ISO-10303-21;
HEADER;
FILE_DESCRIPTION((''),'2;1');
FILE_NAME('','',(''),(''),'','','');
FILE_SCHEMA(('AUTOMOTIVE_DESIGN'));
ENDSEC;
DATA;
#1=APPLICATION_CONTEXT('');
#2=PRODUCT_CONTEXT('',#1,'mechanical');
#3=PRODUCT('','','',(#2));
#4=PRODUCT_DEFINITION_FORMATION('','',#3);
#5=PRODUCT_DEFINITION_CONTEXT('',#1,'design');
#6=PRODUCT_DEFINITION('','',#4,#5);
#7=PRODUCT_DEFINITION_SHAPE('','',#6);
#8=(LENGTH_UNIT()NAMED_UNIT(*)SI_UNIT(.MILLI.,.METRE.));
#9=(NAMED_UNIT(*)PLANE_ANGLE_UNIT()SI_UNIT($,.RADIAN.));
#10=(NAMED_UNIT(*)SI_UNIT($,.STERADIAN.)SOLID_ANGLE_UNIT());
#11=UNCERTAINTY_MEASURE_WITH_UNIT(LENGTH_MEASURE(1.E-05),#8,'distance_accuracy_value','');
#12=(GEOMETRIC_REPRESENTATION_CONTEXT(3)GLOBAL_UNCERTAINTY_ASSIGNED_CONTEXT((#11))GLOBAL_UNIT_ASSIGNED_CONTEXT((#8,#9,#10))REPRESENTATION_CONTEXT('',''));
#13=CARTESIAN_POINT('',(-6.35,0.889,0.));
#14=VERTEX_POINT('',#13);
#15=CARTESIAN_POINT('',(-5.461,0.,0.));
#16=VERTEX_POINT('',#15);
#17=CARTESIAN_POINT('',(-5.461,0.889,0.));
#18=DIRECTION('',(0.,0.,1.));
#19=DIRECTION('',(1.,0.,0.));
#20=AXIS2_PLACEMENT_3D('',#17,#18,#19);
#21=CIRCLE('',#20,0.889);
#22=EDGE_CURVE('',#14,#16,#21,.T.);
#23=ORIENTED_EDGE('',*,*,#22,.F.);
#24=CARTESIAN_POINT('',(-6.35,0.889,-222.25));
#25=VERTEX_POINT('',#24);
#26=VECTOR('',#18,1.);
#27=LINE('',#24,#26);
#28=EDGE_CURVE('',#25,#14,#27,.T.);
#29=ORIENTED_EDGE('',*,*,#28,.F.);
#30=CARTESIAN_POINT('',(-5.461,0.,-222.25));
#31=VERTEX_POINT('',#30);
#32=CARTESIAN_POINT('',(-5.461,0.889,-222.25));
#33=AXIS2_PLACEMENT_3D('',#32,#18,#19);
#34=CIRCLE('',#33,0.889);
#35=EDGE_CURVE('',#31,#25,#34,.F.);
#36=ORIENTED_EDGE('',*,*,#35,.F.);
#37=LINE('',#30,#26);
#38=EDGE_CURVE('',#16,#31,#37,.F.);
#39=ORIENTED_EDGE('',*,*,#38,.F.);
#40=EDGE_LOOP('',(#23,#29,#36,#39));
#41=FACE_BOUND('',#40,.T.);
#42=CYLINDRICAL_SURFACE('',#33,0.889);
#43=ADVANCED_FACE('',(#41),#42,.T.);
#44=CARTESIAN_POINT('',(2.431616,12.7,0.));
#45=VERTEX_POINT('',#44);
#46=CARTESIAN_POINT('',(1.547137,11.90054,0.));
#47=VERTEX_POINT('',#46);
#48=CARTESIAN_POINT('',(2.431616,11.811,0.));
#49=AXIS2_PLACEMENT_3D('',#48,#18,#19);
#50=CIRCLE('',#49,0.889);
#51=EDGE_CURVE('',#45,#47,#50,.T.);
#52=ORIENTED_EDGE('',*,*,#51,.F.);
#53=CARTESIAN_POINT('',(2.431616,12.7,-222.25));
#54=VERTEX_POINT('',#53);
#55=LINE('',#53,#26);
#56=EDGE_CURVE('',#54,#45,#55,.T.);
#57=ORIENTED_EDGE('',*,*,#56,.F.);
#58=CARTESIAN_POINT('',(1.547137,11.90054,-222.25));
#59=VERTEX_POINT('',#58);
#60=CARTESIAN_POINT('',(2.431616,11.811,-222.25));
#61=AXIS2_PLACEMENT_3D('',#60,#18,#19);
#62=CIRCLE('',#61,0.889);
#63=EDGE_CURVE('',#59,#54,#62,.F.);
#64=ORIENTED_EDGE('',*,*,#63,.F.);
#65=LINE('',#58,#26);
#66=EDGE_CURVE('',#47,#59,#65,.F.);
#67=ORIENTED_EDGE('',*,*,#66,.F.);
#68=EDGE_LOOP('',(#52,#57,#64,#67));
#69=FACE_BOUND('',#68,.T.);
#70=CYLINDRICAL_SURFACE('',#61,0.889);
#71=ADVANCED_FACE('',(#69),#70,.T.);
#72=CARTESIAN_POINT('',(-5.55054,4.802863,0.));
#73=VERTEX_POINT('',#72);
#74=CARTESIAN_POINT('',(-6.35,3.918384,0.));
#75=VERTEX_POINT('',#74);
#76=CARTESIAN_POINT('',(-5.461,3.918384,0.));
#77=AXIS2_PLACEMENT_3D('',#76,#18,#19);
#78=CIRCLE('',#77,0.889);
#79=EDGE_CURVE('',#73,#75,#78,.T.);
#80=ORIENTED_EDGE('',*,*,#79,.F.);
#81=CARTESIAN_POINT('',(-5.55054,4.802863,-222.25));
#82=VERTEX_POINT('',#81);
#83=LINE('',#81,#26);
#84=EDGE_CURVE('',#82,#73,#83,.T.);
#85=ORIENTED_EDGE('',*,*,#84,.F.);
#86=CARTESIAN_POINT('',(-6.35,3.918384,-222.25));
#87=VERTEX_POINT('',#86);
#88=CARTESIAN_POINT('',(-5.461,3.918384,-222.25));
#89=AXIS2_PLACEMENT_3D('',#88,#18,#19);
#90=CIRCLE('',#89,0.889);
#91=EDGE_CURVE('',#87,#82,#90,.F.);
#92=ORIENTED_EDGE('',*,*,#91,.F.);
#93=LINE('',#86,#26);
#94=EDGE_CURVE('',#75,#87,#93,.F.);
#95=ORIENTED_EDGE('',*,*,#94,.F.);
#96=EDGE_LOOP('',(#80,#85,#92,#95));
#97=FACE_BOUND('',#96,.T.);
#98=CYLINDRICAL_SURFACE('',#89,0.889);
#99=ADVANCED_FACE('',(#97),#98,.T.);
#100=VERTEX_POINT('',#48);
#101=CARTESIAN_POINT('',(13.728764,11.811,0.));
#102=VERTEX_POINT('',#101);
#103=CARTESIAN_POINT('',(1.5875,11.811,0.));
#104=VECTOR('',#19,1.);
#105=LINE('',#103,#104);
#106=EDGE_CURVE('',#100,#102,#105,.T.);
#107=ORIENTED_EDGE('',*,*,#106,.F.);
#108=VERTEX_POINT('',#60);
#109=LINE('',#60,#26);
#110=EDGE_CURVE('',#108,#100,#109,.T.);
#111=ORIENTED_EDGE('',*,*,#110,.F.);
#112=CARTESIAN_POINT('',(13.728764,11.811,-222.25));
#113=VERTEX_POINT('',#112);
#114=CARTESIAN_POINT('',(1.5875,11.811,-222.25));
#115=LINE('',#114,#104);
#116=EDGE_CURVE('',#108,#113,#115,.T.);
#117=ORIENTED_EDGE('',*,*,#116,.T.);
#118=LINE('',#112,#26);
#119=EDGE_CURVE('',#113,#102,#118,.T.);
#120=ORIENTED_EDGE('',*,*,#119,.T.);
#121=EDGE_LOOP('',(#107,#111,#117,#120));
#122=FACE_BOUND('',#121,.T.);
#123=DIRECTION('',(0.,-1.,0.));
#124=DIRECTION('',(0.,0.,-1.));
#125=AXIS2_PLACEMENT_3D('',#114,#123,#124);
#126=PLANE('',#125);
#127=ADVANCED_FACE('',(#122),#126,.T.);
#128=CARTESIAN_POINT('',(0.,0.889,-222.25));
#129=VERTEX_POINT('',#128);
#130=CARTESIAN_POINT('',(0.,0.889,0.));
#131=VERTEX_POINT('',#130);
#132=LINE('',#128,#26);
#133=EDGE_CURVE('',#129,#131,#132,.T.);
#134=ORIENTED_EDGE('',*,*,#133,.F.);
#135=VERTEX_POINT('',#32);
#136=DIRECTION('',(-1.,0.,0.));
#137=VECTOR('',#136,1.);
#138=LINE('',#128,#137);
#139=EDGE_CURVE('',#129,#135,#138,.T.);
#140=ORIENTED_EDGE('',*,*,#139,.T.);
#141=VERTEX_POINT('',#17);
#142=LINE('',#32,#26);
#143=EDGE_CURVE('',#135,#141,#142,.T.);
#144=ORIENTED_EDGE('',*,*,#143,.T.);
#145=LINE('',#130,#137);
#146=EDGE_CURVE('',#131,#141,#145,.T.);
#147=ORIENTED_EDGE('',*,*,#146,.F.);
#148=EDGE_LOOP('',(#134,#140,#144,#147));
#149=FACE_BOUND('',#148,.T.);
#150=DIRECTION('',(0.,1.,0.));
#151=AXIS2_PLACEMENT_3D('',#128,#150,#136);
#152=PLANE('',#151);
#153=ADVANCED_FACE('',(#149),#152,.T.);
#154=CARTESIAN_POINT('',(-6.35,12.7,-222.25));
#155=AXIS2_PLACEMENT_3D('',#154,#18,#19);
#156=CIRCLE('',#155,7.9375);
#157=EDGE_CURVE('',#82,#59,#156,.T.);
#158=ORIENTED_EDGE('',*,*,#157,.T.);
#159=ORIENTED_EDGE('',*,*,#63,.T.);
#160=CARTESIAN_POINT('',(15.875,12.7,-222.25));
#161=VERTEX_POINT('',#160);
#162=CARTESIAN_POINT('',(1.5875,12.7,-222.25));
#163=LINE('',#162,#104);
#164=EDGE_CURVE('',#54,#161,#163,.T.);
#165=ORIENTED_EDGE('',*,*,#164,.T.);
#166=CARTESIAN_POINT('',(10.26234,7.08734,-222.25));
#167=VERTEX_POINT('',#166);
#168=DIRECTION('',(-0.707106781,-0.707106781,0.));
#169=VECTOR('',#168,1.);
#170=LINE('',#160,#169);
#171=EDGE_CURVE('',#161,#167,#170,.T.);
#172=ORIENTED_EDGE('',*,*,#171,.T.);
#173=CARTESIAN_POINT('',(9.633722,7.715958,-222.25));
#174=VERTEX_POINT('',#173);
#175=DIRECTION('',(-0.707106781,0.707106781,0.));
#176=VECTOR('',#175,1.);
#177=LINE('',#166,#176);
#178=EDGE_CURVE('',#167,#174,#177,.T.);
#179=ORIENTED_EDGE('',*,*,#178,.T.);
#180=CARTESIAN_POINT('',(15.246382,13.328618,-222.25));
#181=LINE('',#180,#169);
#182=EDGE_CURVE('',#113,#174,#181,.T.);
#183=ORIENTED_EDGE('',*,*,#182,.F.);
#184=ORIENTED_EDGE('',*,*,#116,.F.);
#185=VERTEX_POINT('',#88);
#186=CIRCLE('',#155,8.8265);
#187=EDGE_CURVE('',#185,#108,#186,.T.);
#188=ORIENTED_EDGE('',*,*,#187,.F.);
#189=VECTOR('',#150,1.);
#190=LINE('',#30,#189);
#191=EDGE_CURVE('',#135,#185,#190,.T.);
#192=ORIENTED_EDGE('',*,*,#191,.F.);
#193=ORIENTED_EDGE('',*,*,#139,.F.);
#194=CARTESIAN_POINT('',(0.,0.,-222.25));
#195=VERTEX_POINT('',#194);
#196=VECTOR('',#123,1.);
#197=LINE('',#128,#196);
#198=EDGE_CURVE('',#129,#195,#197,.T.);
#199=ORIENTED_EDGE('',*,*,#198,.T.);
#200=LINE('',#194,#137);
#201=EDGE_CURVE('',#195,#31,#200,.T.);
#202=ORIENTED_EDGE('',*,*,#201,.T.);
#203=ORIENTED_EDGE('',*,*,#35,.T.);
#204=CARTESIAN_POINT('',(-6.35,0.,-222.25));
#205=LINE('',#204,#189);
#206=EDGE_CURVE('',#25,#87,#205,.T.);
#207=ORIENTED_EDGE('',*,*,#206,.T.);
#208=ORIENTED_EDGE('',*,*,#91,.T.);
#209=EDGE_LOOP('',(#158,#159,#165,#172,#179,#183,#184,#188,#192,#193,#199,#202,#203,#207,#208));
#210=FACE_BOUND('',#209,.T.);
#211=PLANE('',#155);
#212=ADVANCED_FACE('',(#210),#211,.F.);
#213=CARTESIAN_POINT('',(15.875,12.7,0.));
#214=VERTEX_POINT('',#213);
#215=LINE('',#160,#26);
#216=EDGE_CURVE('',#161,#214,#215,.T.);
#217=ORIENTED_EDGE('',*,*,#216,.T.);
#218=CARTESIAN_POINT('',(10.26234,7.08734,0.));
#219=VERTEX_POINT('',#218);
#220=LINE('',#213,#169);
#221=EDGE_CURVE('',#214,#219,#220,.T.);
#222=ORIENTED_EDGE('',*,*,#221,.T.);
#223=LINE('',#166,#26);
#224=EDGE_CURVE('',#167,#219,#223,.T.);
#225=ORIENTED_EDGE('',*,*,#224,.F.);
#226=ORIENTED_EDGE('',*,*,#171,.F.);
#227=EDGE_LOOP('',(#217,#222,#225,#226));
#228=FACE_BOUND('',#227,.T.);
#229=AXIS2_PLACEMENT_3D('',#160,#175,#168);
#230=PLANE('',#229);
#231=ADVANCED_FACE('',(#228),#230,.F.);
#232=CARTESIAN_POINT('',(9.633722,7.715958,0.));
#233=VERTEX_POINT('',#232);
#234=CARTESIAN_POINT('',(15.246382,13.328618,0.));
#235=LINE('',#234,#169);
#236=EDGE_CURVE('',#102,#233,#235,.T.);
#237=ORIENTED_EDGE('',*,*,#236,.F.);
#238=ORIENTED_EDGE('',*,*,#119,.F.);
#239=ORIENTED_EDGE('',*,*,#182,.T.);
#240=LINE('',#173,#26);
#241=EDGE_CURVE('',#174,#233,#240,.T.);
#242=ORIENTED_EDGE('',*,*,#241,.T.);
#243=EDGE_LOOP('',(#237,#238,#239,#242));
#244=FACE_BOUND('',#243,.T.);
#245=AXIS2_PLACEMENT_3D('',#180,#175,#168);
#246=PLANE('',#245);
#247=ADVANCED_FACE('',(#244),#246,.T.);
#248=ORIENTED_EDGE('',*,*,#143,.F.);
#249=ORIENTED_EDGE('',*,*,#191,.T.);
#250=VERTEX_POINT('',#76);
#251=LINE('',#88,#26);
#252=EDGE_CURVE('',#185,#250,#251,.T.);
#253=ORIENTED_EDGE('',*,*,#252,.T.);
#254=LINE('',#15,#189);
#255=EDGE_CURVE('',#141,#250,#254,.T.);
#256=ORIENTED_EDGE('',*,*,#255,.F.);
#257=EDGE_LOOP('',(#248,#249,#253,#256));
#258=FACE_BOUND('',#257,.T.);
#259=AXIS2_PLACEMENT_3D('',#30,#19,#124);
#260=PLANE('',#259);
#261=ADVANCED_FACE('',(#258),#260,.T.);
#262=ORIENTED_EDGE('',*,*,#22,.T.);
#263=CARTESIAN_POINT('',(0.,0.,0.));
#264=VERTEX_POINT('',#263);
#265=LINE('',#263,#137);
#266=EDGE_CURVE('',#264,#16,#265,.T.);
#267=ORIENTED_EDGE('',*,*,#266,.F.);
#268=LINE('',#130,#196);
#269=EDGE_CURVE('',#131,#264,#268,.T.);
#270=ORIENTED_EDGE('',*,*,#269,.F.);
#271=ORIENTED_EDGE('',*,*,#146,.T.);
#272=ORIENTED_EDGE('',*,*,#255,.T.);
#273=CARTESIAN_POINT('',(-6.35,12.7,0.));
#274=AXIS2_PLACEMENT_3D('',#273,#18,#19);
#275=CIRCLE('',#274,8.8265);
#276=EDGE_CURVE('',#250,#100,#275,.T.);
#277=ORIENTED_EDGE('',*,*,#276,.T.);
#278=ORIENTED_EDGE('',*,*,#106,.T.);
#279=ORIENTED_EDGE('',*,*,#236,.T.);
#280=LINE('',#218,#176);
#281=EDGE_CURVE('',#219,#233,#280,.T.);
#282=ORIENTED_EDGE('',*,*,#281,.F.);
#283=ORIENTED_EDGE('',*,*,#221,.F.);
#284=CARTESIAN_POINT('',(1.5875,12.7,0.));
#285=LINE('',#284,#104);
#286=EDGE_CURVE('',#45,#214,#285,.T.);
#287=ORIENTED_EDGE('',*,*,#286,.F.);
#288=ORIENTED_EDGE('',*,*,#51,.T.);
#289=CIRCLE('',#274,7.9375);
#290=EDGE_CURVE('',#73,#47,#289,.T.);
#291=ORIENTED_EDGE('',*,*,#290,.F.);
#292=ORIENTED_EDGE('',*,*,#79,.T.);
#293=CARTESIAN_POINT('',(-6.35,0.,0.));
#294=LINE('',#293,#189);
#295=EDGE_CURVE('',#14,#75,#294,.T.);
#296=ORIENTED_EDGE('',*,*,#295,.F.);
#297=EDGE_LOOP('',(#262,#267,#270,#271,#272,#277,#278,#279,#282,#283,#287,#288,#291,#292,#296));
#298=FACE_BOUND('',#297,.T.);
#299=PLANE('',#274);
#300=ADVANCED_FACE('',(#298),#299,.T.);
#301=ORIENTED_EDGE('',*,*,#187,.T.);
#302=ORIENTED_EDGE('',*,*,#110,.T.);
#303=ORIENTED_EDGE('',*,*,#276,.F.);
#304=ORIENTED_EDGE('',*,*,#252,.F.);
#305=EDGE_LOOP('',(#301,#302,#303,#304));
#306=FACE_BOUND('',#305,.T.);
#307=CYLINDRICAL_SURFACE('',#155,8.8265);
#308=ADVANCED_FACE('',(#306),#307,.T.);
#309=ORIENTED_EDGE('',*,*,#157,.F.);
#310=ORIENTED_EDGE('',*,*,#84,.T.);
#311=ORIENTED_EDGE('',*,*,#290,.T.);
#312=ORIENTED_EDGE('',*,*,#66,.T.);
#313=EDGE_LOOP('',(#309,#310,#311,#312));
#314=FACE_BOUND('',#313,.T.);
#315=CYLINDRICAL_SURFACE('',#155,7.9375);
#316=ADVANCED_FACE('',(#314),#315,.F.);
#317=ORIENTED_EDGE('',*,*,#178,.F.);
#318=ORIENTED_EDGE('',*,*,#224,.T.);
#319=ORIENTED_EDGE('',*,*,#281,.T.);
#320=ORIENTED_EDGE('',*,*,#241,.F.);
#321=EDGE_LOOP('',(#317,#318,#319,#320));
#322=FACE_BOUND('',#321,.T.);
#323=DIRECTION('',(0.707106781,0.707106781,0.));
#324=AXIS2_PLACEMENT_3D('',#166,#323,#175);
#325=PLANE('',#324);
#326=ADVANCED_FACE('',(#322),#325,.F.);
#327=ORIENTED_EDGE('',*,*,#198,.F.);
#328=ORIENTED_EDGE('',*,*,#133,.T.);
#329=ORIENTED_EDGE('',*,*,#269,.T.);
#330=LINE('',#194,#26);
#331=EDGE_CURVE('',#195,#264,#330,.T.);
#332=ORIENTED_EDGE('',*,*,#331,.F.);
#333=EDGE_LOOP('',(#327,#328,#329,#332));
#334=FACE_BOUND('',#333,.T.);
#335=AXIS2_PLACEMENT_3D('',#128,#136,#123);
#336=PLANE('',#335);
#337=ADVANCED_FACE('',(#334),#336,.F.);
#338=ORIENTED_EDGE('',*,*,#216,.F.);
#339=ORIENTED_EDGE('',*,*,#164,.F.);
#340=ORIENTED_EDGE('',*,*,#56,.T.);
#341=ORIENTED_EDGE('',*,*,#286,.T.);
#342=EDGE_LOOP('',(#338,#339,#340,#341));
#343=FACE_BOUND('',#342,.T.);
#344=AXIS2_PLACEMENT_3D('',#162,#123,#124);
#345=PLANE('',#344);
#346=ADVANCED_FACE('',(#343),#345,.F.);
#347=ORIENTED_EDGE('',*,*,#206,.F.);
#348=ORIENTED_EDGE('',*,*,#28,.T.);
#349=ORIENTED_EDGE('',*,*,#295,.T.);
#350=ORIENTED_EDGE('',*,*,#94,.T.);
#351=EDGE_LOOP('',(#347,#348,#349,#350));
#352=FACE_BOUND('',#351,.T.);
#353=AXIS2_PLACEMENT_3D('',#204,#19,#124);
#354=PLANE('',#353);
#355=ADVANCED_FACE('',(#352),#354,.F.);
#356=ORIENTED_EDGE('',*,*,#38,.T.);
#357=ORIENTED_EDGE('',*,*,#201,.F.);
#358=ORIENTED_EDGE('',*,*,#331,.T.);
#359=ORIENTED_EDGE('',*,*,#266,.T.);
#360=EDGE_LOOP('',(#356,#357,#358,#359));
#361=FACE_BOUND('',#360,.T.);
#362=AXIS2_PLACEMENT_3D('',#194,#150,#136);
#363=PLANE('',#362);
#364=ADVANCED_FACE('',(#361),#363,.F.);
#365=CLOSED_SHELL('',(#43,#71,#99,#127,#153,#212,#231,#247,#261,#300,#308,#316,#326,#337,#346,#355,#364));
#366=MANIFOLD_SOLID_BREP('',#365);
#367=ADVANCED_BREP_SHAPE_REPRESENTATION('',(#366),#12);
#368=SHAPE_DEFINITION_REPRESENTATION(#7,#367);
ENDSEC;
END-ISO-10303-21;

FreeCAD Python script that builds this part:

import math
import FreeCAD as App
import Part
import Sketcher

V = App.Vector
Q = App.Units.Quantity


def edges_at(feature, points):
    """Names of the edges that pass closest to the given points."""
    edges = feature.Shape.Edges
    near = lambda p: min(range(len(edges)), key=lambda i: edges[i].distToShape(Part.Vertex(*p))[0])
    return sorted({f"Edge{near(p) + 1}" for p in points})

doc = App.newDocument("Part")
params = doc.addObject("Spreadsheet::Sheet", "Params")
for row, (alias, value) in enumerate([
    ("sketch1_radius", "0.3125 in"),
    ("sketch1_width", "0.25 in"),
    ("sketch1_width2", "0.215 in"),
    ("sketch1_width3", "0.5625 in"),
    ("sketch1_height", "0.035 in"),
    ("pad1_length", "8.75 in"),
    ("fillet_radius", "0.035 in"),
], start=1):
    params.set(f"A{row}", alias)
    params.set(f"B{row}", "=" + value)
    params.setAlias(f"B{row}", alias)

body = doc.addObject("PartDesign::Body", "Body")

# Sketch on XY plane
sketch1 = body.newObject("Sketcher::SketchObject", "Sketch")
sketch1.AttachmentSupport = (doc.getObject("XY_Plane"), [""])
sketch1.MapMode = "FlatFace"
sketch1.addGeometry([
    Part.LineSegment(V(-6.3, 0, 0), V(0, 0, 0)),  # 0
    Part.LineSegment(V(0, 0, 0), V(0, 0.9, 0)),  # 1
    Part.LineSegment(V(0, 0.9, 0), V(-5.5, 0.9, 0)),  # 2
    Part.LineSegment(V(-5.5, 0.9, 0), V(-5.5, 3.9, 0)),  # 3
    Part.ArcOfCircle(Part.Circle(V(-6.4, 12.7, 0), V(0, 0, 1), 8.8), math.radians(-84), math.radians(-6)),  # 4
    Part.LineSegment(V(2.4, 11.8, 0), V(13.7, 11.8, 0)),  # 5
    Part.LineSegment(V(13.7, 11.8, 0), V(9.6, 7.7, 0)),  # 6
    Part.LineSegment(V(9.6, 7.7, 0), V(10.3, 7.1, 0)),  # 7
    Part.LineSegment(V(10.3, 7.1, 0), V(15.9, 12.7, 0)),  # 8
    Part.LineSegment(V(15.9, 12.7, 0), V(1.6, 12.7, 0)),  # 9
    Part.ArcOfCircle(Part.Circle(V(-6.3, 12.7, 0), V(0, 0, 1), 7.9), math.radians(-90), math.radians(0)),  # 10
    Part.LineSegment(V(-6.3, 4.8, 0), V(-6.3, 0, 0)),  # 11
], False)
sketch1.addConstraint([
    Sketcher.Constraint("Coincident", 0, 2, 1, 1),
    Sketcher.Constraint("Coincident", 1, 2, 2, 1),
    Sketcher.Constraint("Coincident", 2, 2, 3, 1),
    Sketcher.Constraint("Coincident", 3, 2, 4, 1),
    Sketcher.Constraint("Coincident", 4, 2, 5, 1),
    Sketcher.Constraint("Coincident", 5, 2, 6, 1),
    Sketcher.Constraint("Coincident", 6, 2, 7, 1),
    Sketcher.Constraint("Coincident", 7, 2, 8, 1),
    Sketcher.Constraint("Coincident", 8, 2, 9, 1),
    Sketcher.Constraint("Coincident", 9, 2, 10, 2),
    Sketcher.Constraint("Coincident", 10, 1, 11, 1),
    Sketcher.Constraint("Coincident", 11, 2, 0, 1),
    Sketcher.Constraint("Horizontal", 0),
    Sketcher.Constraint("Vertical", 1),
    Sketcher.Constraint("Horizontal", 2),
    Sketcher.Constraint("Vertical", 3),
    Sketcher.Constraint("Horizontal", 5),
    Sketcher.Constraint("Horizontal", 9),
    Sketcher.Constraint("Vertical", 11),
    Sketcher.Constraint("Coincident", 0, 2, -1, 1),
    Sketcher.Constraint("Coincident", 10, 3, 4, 3),
    Sketcher.Constraint("Perpendicular", 6, 7),
    Sketcher.Constraint("Perpendicular", 7, 8),
    Sketcher.Constraint("Horizontal", 10, 3, 8, 2),
    Sketcher.Constraint("Vertical", 4, 3, 10, 1),
    Sketcher.Constraint("Angle", 6, Q("-135 deg")),
    Sketcher.Constraint("Radius", 10, Q("0.3125 in")),
    Sketcher.Constraint("DistanceX", 0, 1, 0, 2, Q("0.25 in")),
    Sketcher.Constraint("DistanceY", -1, 1, 4, 3, Q("0.5 in")),
    Sketcher.Constraint("Radius", 4, Q("0.3475 in")),
    Sketcher.Constraint("DistanceX", 2, 2, 2, 1, Q("0.215 in")),
    Sketcher.Constraint("DistanceX", 9, 2, 9, 1, Q("0.5625 in")),
    Sketcher.Constraint("DistanceY", 1, 1, 1, 2, Q("0.035 in")),
    Sketcher.Constraint("DistanceY", 1, 2, 4, 2, Q("0.43 in")),
    Sketcher.Constraint("Distance", 7, Q("0.035 in")),
    Sketcher.Constraint("Distance", 8, Q("0.3125 in")),
])
sketch1.setExpression("Constraints[26]", "Params.sketch1_radius")
sketch1.setExpression("Constraints[27]", "Params.sketch1_width")
sketch1.setExpression("Constraints[30]", "Params.sketch1_width2")
sketch1.setExpression("Constraints[31]", "Params.sketch1_width3")
sketch1.setExpression("Constraints[32]", "Params.sketch1_height")
pad1 = body.newObject("PartDesign::Pad", "Pad")
pad1.Profile = sketch1
pad1.setExpression("Length", "Params.pad1_length")
pad1.Reversed = True
doc.recompute()

fillet = body.newObject("PartDesign::Fillet", "Fillet")
fillet.Base = (pad1, edges_at(pad1, [(-6.35, 0, -111.125), (-6.35, 4.763, -111.125), (1.587, 12.7, -111.125)]))
fillet.setExpression("Radius", "Params.fillet_radius")

doc.recompute()
